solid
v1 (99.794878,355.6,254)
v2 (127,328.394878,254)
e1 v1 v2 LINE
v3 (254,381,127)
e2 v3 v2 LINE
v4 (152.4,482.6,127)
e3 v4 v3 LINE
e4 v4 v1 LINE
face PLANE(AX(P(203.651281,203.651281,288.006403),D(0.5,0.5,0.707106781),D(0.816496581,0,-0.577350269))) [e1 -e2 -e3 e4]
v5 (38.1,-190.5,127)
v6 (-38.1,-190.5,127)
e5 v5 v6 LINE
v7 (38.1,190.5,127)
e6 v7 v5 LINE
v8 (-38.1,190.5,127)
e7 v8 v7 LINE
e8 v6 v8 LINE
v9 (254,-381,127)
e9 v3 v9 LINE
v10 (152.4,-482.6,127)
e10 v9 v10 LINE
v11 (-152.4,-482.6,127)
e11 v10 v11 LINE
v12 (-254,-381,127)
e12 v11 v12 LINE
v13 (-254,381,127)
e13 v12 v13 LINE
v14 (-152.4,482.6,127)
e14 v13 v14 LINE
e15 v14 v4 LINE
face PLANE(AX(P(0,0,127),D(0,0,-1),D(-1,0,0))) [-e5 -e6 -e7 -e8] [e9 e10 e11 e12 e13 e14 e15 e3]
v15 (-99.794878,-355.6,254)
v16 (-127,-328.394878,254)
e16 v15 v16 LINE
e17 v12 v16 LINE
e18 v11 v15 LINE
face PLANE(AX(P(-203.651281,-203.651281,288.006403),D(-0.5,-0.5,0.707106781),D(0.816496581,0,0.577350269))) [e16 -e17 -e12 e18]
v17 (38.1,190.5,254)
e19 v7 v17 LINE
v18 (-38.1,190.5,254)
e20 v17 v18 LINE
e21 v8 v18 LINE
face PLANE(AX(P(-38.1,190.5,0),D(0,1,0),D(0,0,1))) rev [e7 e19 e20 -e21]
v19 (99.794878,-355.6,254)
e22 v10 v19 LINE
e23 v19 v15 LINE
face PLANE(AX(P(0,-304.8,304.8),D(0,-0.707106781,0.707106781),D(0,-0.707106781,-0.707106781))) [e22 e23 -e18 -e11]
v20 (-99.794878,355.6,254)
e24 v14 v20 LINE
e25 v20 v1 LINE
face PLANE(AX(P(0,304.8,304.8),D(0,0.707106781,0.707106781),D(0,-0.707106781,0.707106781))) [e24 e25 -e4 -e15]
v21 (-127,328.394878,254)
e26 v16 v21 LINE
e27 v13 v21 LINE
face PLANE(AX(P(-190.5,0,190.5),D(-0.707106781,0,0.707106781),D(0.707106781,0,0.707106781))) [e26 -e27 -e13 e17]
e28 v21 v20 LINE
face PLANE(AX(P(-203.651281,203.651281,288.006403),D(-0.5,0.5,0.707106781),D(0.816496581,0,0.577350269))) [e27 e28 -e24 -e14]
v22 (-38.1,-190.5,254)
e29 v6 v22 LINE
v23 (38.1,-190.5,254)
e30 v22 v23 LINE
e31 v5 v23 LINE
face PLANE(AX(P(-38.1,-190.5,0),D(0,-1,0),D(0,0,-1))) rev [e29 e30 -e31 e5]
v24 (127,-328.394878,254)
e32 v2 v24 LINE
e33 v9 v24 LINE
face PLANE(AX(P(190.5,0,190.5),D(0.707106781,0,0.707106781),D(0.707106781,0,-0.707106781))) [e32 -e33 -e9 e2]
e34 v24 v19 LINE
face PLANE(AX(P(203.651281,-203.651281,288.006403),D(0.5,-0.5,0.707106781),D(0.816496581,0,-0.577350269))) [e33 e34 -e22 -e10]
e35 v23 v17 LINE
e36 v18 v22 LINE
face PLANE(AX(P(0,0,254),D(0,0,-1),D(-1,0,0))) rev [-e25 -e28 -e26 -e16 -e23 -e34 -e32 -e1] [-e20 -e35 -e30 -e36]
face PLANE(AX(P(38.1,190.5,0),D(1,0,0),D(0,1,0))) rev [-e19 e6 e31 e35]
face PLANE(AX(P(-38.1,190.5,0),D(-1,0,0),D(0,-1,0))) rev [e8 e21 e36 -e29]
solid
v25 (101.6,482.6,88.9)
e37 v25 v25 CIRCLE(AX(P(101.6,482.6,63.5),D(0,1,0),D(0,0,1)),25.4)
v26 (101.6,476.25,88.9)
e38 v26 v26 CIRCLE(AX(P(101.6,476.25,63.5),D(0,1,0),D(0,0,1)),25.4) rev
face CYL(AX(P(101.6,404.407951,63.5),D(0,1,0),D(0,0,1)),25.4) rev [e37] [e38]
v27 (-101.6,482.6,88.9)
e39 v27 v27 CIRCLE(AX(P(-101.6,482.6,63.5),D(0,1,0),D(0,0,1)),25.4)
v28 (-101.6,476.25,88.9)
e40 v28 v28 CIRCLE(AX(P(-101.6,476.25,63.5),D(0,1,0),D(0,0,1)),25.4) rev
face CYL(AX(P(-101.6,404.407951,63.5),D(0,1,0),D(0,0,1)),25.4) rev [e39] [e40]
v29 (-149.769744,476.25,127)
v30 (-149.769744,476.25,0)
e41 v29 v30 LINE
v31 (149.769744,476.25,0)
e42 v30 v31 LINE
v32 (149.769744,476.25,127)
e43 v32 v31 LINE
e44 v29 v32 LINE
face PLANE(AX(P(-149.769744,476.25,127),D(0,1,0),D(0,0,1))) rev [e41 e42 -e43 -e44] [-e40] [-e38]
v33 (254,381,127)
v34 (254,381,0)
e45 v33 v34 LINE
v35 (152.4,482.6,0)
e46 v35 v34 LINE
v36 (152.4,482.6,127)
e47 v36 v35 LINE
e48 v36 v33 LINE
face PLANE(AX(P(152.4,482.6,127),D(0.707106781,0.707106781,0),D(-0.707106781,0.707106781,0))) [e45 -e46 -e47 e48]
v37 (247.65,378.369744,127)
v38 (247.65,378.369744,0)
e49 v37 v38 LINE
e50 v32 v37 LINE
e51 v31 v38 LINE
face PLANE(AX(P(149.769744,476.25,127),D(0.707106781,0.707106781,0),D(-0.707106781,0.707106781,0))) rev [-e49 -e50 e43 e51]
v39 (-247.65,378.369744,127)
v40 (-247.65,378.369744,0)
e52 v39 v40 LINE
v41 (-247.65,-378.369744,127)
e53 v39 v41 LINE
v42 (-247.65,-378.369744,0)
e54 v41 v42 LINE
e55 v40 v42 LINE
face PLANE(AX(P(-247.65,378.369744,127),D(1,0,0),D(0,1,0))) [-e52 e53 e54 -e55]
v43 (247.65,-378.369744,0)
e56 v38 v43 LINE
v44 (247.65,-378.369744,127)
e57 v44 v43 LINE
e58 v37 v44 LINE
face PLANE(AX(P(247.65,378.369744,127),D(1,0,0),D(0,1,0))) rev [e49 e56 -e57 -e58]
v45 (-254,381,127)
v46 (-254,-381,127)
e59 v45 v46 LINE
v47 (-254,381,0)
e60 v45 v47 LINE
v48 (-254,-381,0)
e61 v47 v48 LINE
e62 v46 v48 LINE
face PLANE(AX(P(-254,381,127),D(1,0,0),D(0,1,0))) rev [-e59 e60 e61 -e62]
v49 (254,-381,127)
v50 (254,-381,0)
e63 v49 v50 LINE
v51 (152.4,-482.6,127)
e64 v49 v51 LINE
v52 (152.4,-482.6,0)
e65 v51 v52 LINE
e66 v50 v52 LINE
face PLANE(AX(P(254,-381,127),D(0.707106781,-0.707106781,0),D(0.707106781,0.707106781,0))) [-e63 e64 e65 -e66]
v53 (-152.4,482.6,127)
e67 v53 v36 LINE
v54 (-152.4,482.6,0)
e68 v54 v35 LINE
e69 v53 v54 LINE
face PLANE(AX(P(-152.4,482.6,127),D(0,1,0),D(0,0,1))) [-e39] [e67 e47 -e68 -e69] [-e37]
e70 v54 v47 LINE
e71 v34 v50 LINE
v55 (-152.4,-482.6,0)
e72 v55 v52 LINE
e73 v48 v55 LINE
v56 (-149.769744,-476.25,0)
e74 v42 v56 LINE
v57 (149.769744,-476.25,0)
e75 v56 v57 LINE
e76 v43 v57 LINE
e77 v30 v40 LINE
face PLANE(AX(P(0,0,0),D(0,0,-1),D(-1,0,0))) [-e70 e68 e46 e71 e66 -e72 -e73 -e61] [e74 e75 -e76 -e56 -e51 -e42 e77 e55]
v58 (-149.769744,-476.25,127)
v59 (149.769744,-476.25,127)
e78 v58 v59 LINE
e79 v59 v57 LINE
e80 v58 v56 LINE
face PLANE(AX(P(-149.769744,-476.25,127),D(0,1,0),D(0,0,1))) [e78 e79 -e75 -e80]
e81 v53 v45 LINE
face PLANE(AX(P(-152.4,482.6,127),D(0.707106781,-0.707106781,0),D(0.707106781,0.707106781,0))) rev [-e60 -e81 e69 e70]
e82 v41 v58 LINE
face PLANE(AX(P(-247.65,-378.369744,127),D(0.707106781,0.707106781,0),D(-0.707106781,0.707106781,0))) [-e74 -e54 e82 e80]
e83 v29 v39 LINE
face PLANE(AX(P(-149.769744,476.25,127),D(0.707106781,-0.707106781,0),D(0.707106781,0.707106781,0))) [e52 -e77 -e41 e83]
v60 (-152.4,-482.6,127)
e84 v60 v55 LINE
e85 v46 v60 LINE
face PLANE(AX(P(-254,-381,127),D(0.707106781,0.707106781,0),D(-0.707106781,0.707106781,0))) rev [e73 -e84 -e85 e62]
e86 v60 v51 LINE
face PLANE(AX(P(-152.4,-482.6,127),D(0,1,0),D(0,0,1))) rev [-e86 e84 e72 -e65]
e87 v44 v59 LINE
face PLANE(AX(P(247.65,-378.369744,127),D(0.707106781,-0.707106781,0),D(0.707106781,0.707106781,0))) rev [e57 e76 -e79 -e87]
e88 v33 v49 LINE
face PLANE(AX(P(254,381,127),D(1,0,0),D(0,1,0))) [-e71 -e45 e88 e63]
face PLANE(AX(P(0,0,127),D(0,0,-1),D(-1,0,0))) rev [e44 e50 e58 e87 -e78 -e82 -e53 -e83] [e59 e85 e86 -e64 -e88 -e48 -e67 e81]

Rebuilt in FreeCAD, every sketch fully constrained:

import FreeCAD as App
import Part
import Sketcher
Q = App.Units.Quantity


def add_polygon(sketch, points):
    """Adds a closed chain of lines whose ends are joined by coincident constraints."""
    first, n = sketch.GeometryCount, len(points)
    for a, b in zip(points, points[1:] + points[:1]):
        sketch.addGeometry(Part.LineSegment(App.Vector(*a, 0), App.Vector(*b, 0)), False)
    for i in range(n):
        sketch.addConstraint(Sketcher.Constraint("Coincident", first + i, 2, first + (i + 1) % n, 1))

doc = App.newDocument("Part")
body = doc.addObject("PartDesign::Body", "Body")

# Sketch on XY plane
sketch1 = body.newObject("Sketcher::SketchObject", "Sketch")
sketch1.AttachmentSupport = (doc.getObject("XY_Plane"), [""])
sketch1.MapMode = "FlatFace"
add_polygon(sketch1, [(-152.4, 482.6), (-254, 381), (-254, -381), (-152.4, -482.6), (152.4, -482.6), (254, -381), (254, 381), (152.4, 482.6)])  # lines 0-7
add_polygon(sketch1, [(-247.65, 378.369744), (-149.769744, 476.25), (149.769744, 476.25), (247.65, 378.369744), (247.65, -378.369744), (149.769744, -476.25), (-149.769744, -476.25), (-247.65, -378.369744)])  # lines 8-15
sketch1.addConstraint([
    Sketcher.Constraint("Vertical", 1),
    Sketcher.Constraint("Horizontal", 3),
    Sketcher.Constraint("Vertical", 5),
    Sketcher.Constraint("Horizontal", 7),
    Sketcher.Constraint("Horizontal", 9),
    Sketcher.Constraint("Vertical", 11),
    Sketcher.Constraint("Horizontal", 13),
    Sketcher.Constraint("Vertical", 15),
    Sketcher.Constraint("Symmetric", 0, 2, 4, 2, -1, 1),
    Sketcher.Constraint("Symmetric", 2, 2, 6, 2, -1, 1),
    Sketcher.Constraint("Symmetric", 8, 2, 12, 2, -1, 1),
    Sketcher.Constraint("Symmetric", 10, 2, 14, 2, -1, 1),
    Sketcher.Constraint("Perpendicular", 0, 2),
    Sketcher.Constraint("Perpendicular", 2, 4),
    Sketcher.Constraint("Perpendicular", 4, 6),
    Sketcher.Constraint("Perpendicular", 6, 8),
    Sketcher.Constraint("Perpendicular", 8, 10),
    Sketcher.Constraint("Perpendicular", 10, 12),
    Sketcher.Constraint("Perpendicular", 12, 14),
    Sketcher.Constraint("Horizontal", 1, 2, 4, 2),
    Sketcher.Constraint("Horizontal", 11, 2, 14, 2),
    Sketcher.Constraint("Vertical", 3, 2, 6, 2),
    Sketcher.Constraint("DistanceX", 3, 1, 3, 2, Q("12 in")),
    Sketcher.Constraint("DistanceY", 1, 2, 1, 1, Q("30 in")),
    Sketcher.Constraint("DistanceX", 0, 2, -1, 1, Q("10 in")),
    Sketcher.Constraint("DistanceY", -1, 1, 8, 2, Q("18.75 in")),
    Sketcher.Constraint("DistanceX", -1, 1, 10, 2, Q("9.75 in")),
    Sketcher.Constraint("DistanceX", 9, 1, 9, 2, 299.539488),
])
pad1 = body.newObject("PartDesign::Pad", "Pad")
pad1.Profile = sketch1
pad1.Length = Q("5 in")

# Sketch on XZ plane
sketch2 = body.newObject("Sketcher::SketchObject", "Sketch001")
sketch2.AttachmentSupport = (doc.getObject("XZ_Plane"), [""])
sketch2.MapMode = "FlatFace"
sketch2.AttachmentOffset = App.Placement(App.Vector(0, 0, -19 * 25.4), App.Rotation())
sketch2.addGeometry([
    Part.Circle(App.Vector(101.6, 63.5, 0), App.Vector(0, 0, 1), 25.4),
    Part.Circle(App.Vector(-101.6, 63.5, 0), App.Vector(0, 0, 1), 25.4),
], False)
sketch2.addConstraint([
    Sketcher.Constraint("Equal", 0, 1),
    Sketcher.Constraint("Symmetric", 0, 3, 1, 3, -2),
    Sketcher.Constraint("Diameter", 0, Q("2 in")),
    Sketcher.Constraint("DistanceX", -1, 1, 0, 3, Q("4 in")),
    Sketcher.Constraint("DistanceY", -1, 1, 0, 3, Q("2.5 in")),
])
pocket1 = body.newObject("PartDesign::Pocket", "Pocket")
pocket1.Profile = sketch2
pocket1.Length = Q("0.25 in")
pocket1.Reversed = True
body2 = doc.addObject("PartDesign::Body", "Body001")

# Sketch on XY plane
sketch3 = body2.newObject("Sketcher::SketchObject", "Sketch002")
sketch3.AttachmentSupport = (doc.getObject("XY_Plane001"), [""])
sketch3.MapMode = "FlatFace"
sketch3.AttachmentOffset = App.Placement(App.Vector(0, 0, 5 * 25.4), App.Rotation())
add_polygon(sketch3, [(152.4, 482.6), (-152.4, 482.6), (-254, 381), (-254, -381), (-152.4, -482.6), (152.4, -482.6), (254, -381), (254, 381)])  # lines 0-7
sketch3.addConstraint([
    Sketcher.Constraint("Horizontal", 0),
    Sketcher.Constraint("Vertical", 2),
    Sketcher.Constraint("Horizontal", 4),
    Sketcher.Constraint("Vertical", 6),
    Sketcher.Constraint("Symmetric", 0, 2, 4, 2, -1, 1),
    Sketcher.Constraint("Symmetric", 1, 2, 5, 2, -1, 1),
    Sketcher.Constraint("Perpendicular", 1, 3),
    Sketcher.Constraint("Perpendicular", 5, 7),
    Sketcher.Constraint("Horizontal", 2, 2, 5, 2),
    Sketcher.Constraint("Horizontal", 1, 2, 6, 2),
    Sketcher.Constraint("Vertical", 0, 2, 3, 2),
    Sketcher.Constraint("DistanceX", 0, 2, 0, 1, Q("12 in")),
    Sketcher.Constraint("DistanceY", 2, 2, 2, 1, Q("30 in")),
    Sketcher.Constraint("DistanceY", -1, 1, 0, 2, Q("19 in")),
])

# Sketch on XY plane
sketch4 = body2.newObject("Sketcher::SketchObject", "Sketch003")
sketch4.AttachmentSupport = (doc.getObject("XY_Plane001"), [""])
sketch4.MapMode = "FlatFace"
sketch4.AttachmentOffset = App.Placement(App.Vector(0, 0, 10 * 25.4), App.Rotation())
add_polygon(sketch4, [(-99.794878, 355.6), (-127, 328.394878), (-127, -328.394878), (-99.794878, -355.6), (99.794878, -355.6), (127, -328.394878), (127, 328.394878), (99.794878, 355.6)])  # lines 0-7
sketch4.addConstraint([
    Sketcher.Constraint("Vertical", 1),
    Sketcher.Constraint("Horizontal", 3),
    Sketcher.Constraint("Vertical", 5),
    Sketcher.Constraint("Horizontal", 7),
    Sketcher.Constraint("Symmetric", 0, 2, 4, 2, -1, 1),
    Sketcher.Constraint("Symmetric", 2, 2, 6, 2, -1, 1),
    Sketcher.Constraint("Perpendicular", 0, 2),
    Sketcher.Constraint("Perpendicular", 2, 4),
    Sketcher.Constraint("Perpendicular", 4, 6),
    Sketcher.Constraint("Horizontal", 1, 2, 4, 2),
    Sketcher.Constraint("Vertical", 3, 2, 6, 2),
    Sketcher.Constraint("DistanceX", 0, 2, -1, 1, Q("5 in")),
    Sketcher.Constraint("DistanceY", 2, 2, -1, 1, Q("14 in")),
    Sketcher.Constraint("DistanceX", 3, 1, 3, 2, 199.589755),
])

additiveloft = body2.newObject("PartDesign::AdditiveLoft", "AdditiveLoft")
additiveloft.Profile = sketch3
additiveloft.Sections = [sketch4]

# Sketch on XY plane
sketch5 = body2.newObject("Sketcher::SketchObject", "Sketch004")
sketch5.AttachmentSupport = (doc.getObject("XY_Plane001"), [""])
sketch5.MapMode = "FlatFace"
sketch5.AttachmentOffset = App.Placement(App.Vector(0, 0, 10 * 25.4), App.Rotation())
add_polygon(sketch5, [(-38.1, 190.5), (-38.1, -190.5), (38.1, -190.5), (38.1, 190.5)])  # lines 0-3
sketch5.addConstraint([
    Sketcher.Constraint("Vertical", 0),
    Sketcher.Constraint("Horizontal", 1),
    Sketcher.Constraint("Vertical", 2),
    Sketcher.Constraint("Horizontal", 3),
    Sketcher.Constraint("Symmetric", 0, 2, 2, 2, -1, 1),
    Sketcher.Constraint("DistanceX", 1, 1, 1, 2, Q("3 in")),
    Sketcher.Constraint("DistanceY", 0, 2, 0, 1, Q("15 in")),
])
pocket2 = body2.newObject("PartDesign::Pocket", "Pocket001")
pocket2.Profile = sketch5
pocket2.Type = "ThroughAll"

doc.recompute()
